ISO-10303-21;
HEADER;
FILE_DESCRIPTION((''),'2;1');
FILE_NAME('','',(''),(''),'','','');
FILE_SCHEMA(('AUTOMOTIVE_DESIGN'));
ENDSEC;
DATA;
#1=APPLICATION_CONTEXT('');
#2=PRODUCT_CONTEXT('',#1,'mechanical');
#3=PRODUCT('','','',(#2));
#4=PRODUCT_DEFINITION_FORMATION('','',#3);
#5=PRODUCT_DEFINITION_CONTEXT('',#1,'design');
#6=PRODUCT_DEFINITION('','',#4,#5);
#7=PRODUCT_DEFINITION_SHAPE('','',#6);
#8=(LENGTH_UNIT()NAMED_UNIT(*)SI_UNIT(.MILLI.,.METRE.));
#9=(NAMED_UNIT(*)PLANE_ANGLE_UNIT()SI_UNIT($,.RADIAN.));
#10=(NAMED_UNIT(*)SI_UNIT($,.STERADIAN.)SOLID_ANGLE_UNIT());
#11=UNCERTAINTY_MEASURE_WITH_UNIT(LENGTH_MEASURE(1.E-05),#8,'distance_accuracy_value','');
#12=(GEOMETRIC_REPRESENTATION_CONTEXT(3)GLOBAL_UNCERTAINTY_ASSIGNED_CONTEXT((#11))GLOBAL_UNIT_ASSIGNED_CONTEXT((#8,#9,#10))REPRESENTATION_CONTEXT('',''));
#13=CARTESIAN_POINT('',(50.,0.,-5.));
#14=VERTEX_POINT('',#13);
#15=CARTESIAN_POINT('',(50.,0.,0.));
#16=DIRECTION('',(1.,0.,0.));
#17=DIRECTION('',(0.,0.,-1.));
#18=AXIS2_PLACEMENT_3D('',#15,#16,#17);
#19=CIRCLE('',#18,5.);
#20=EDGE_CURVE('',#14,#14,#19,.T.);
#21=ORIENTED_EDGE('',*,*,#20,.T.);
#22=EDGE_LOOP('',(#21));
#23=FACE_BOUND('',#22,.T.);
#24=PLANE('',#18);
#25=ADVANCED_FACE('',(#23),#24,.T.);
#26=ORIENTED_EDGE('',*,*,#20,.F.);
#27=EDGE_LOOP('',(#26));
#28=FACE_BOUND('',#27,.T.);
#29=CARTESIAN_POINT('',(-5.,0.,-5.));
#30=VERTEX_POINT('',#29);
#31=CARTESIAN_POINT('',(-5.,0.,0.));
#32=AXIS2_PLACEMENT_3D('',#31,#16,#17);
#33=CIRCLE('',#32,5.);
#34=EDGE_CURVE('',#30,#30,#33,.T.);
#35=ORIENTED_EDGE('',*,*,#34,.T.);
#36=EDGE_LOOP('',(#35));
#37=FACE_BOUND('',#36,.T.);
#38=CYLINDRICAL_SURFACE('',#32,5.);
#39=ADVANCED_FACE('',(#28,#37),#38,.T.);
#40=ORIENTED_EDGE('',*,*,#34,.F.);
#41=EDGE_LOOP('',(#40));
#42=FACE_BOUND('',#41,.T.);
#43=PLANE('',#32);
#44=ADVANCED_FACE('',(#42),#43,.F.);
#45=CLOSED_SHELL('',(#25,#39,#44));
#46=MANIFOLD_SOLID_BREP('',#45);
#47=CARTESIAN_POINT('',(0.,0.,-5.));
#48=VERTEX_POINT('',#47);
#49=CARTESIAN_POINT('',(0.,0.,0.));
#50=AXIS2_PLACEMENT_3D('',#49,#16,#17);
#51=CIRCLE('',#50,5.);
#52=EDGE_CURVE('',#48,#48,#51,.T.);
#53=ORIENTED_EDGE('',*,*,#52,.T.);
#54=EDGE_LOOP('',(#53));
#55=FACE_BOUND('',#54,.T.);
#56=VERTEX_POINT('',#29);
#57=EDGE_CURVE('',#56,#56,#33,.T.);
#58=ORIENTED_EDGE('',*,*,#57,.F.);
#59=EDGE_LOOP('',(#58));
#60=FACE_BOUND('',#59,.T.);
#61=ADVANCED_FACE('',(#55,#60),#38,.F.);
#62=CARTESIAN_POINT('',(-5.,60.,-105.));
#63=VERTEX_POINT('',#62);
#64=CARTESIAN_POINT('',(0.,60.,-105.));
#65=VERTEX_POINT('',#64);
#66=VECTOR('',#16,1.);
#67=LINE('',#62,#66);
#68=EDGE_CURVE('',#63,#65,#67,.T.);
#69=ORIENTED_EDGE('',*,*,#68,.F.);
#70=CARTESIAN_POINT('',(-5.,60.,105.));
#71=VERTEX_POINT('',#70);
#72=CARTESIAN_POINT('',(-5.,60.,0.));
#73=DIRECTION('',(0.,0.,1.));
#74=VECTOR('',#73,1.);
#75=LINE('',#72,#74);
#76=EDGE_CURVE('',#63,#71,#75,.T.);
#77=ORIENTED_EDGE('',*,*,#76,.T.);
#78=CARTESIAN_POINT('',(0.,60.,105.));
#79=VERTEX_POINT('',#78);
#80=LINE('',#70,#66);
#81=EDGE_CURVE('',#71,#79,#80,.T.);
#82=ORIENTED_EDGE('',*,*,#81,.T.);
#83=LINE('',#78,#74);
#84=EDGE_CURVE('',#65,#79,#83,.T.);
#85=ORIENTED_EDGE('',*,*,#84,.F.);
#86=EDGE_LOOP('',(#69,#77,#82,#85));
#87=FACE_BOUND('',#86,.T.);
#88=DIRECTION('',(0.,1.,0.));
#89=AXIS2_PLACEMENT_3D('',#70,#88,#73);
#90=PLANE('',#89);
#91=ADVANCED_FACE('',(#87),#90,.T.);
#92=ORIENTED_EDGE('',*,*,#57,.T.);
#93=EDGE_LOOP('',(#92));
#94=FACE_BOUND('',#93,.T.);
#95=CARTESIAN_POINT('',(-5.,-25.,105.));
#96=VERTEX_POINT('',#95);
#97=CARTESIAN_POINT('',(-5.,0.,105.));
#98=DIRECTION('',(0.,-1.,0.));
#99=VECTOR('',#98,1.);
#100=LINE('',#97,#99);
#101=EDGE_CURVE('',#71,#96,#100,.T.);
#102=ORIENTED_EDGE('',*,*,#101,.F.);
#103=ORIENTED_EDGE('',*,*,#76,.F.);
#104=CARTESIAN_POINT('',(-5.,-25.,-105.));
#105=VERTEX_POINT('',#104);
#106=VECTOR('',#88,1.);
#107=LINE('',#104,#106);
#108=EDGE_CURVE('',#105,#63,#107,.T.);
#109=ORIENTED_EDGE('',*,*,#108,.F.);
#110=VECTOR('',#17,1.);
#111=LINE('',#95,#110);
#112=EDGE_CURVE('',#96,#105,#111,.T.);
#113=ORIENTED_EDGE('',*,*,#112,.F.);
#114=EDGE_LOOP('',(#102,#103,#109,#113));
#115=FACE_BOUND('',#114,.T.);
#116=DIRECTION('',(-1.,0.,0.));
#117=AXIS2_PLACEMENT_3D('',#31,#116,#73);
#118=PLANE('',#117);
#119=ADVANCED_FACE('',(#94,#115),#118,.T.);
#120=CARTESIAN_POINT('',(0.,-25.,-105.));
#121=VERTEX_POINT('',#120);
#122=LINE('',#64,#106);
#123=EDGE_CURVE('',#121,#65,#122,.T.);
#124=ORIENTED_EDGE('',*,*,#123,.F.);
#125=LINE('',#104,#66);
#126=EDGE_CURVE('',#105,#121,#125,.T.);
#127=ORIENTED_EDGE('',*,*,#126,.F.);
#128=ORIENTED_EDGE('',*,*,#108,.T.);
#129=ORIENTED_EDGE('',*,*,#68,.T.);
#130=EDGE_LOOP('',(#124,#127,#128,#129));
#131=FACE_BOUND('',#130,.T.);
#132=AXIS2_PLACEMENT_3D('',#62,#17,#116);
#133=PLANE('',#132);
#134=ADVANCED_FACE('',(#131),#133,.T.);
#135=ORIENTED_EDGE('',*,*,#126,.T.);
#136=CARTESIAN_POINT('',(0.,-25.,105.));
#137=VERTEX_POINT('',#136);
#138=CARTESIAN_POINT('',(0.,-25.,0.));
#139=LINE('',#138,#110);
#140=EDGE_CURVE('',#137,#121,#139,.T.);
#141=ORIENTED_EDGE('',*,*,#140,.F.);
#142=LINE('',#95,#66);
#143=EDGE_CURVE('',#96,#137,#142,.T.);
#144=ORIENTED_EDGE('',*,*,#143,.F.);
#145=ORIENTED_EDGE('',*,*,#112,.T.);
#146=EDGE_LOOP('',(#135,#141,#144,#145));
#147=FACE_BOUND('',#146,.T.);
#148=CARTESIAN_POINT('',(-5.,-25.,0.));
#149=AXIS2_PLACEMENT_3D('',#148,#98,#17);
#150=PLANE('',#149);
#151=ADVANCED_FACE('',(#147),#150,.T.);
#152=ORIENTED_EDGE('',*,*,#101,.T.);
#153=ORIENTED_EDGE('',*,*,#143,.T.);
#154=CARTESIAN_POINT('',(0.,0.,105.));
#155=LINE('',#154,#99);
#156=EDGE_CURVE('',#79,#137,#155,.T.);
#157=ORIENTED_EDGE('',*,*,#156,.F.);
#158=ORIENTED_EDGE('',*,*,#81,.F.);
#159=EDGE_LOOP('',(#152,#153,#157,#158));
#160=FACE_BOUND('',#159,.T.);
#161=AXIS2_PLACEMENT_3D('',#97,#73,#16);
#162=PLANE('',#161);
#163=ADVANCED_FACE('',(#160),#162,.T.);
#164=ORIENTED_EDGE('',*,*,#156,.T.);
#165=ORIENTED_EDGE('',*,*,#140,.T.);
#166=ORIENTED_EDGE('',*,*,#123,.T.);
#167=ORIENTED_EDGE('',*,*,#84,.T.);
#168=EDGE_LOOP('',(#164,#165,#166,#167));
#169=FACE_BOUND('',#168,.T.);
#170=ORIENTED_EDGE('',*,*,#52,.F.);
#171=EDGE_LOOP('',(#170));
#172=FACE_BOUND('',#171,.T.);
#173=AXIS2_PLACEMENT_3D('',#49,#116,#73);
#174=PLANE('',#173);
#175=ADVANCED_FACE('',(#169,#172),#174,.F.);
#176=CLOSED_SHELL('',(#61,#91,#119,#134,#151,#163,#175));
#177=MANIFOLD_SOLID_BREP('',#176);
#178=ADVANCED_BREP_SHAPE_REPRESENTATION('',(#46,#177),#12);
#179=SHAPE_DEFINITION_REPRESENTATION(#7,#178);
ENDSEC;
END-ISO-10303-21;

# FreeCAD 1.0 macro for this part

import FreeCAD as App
import Part
import Sketcher
from FreeCAD import Vector
Q = App.Units.Quantity


def add_polygon(sketch, points):
    """Adds a closed chain of lines whose ends are joined by coincident constraints."""
    first, n = sketch.GeometryCount, len(points)
    for a, b in zip(points, points[1:] + points[:1]):
        sketch.addGeometry(Part.LineSegment(App.Vector(*a, 0), App.Vector(*b, 0)), False)
    for i in range(n):
        sketch.addConstraint(Sketcher.Constraint("Coincident", first + i, 2, first + (i + 1) % n, 1))

doc = App.newDocument("Part")
body = doc.addObject("PartDesign::Body", "Body")

# Sketch on YZ plane
sketch1 = doc.addObject("Sketcher::SketchObject", "Sketch")
body.addObject(sketch1)
sketch1.AttachmentSupport = (doc.YZ_Plane, [""])
sketch1.MapMode = "FlatFace"
sketch1.addGeometry(Part.Circle(Vector(0, 0, 0), Vector(0, 0, 1), 5), False)
sketch1.addConstraint([
    Sketcher.Constraint("Coincident", 0, 3, -1, 1),
    Sketcher.Constraint("Diameter", 0, Q("10 mm")),
])
pad1 = doc.addObject("PartDesign::Pad", "Pad")
body.addObject(pad1)
pad1.Profile = sketch1
pad1.Type = "TwoLengths"
pad1.Length = 50
pad1.Length2 = 5
body2 = doc.addObject("PartDesign::Body", "Body001")

# Sketch on YZ plane
sketch2 = doc.addObject("Sketcher::SketchObject", "Sketch001")
body2.addObject(sketch2)
sketch2.AttachmentSupport = (doc.getObject("YZ_Plane001"), [""])
sketch2.MapMode = "FlatFace"
add_polygon(sketch2, [(-25, -105), (60, -105), (60, 105), (-25, 105)])  # lines 0-3
sketch2.addGeometry(Part.Circle(Vector(0, 0, 0), Vector(0, 0, 1), 5), False)  # 4
sketch2.addConstraint([
    Sketcher.Constraint("Horizontal", 0),
    Sketcher.Constraint("Vertical", 1),
    Sketcher.Constraint("Horizontal", 2),
    Sketcher.Constraint("Vertical", 3),
    Sketcher.Constraint("Coincident", 4, 3, -1, 1),
    Sketcher.Constraint("Diameter", 4, Q("10 mm")),
    Sketcher.Constraint("DistanceX", 0, 1, 0, 2, Q("85 mm")),
    Sketcher.Constraint("DistanceY", 1, 1, 1, 2, Q("210 mm")),
    Sketcher.Constraint("DistanceX", -1, 1, 0, 2, Q("60 mm")),
    Sketcher.Constraint("DistanceY", 0, 2, -1, 1, Q("105 mm")),
])
pad2 = doc.addObject("PartDesign::Pad", "Pad001")
body2.addObject(pad2)
pad2.Profile = sketch2
pad2.Length = 5
pad2.Reversed = True

doc.recompute()
